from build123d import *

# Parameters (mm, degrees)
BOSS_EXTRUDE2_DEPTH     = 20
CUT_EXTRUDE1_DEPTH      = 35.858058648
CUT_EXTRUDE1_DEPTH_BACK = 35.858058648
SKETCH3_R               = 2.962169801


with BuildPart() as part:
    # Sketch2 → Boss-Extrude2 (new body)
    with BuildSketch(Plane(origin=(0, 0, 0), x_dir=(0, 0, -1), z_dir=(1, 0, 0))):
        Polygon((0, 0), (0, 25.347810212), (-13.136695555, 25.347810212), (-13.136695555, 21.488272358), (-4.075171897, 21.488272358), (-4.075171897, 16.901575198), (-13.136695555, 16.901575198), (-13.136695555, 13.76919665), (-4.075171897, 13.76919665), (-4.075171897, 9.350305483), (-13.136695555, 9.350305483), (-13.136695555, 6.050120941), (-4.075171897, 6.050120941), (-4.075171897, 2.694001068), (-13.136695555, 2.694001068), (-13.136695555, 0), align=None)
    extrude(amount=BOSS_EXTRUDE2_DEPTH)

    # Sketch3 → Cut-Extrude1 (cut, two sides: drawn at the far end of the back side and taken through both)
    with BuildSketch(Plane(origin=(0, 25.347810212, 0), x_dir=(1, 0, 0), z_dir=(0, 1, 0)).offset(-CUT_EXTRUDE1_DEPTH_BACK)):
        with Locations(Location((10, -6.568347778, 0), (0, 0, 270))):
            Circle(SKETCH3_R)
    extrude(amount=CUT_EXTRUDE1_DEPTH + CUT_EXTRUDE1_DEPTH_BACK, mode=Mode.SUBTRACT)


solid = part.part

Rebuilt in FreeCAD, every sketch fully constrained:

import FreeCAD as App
import Part
import Sketcher

V = App.Vector

doc = App.newDocument("Part")
body = doc.addObject("PartDesign::Body", "Body")

sketch1 = body.newObject("Sketcher::SketchObject", "Sketch")
sketch1.AttachmentSupport = (doc.getObject("YZ_Plane"), [""])
sketch1.MapMode = "FlatFace"
sketch1.addGeometry([
    Part.LineSegment(V(0, 0, 0), V(25.3, 0, 0)),
    Part.LineSegment(V(25.3, 0, 0), V(25.3, 13.1, 0)),
    Part.LineSegment(V(25.3, 13.1, 0), V(21.5, 13.1, 0)),
    Part.LineSegment(V(21.5, 13.1, 0), V(21.5, 4.1, 0)),
    Part.LineSegment(V(21.5, 4.1, 0), V(16.9, 4.1, 0)),
    Part.LineSegment(V(16.9, 4.1, 0), V(16.9, 13.1, 0)),
    Part.LineSegment(V(16.9, 13.1, 0), V(13.8, 13.1, 0)),
    Part.LineSegment(V(13.8, 13.1, 0), V(13.8, 4.1, 0)),
    Part.LineSegment(V(13.8, 4.1, 0), V(9.4, 4.1, 0)),
    Part.LineSegment(V(9.4, 4.1, 0), V(9.4, 13.1, 0)),
    Part.LineSegment(V(9.4, 13.1, 0), V(6.1, 13.1, 0)),
    Part.LineSegment(V(6.1, 13.1, 0), V(6.1, 4.1, 0)),
    Part.LineSegment(V(6.1, 4.1, 0), V(2.7, 4.1, 0)),
    Part.LineSegment(V(2.7, 4.1, 0), V(2.7, 13.1, 0)),
    Part.LineSegment(V(2.7, 13.1, 0), V(0, 13.1, 0)),
    Part.LineSegment(V(0, 13.1, 0), V(0, 0, 0)),
], False)
sketch1.addConstraint([
    Sketcher.Constraint("Coincident", 0, 2, 1, 1),
    Sketcher.Constraint("Coincident", 1, 2, 2, 1),
    Sketcher.Constraint("Coincident", 2, 2, 3, 1),
    Sketcher.Constraint("Coincident", 3, 2, 4, 1),
    Sketcher.Constraint("Coincident", 4, 2, 5, 1),
    Sketcher.Constraint("Coincident", 5, 2, 6, 1),
    Sketcher.Constraint("Coincident", 6, 2, 7, 1),
    Sketcher.Constraint("Coincident", 7, 2, 8, 1),
    Sketcher.Constraint("Coincident", 8, 2, 9, 1),
    Sketcher.Constraint("Coincident", 9, 2, 10, 1),
    Sketcher.Constraint("Coincident", 10, 2, 11, 1),
    Sketcher.Constraint("Coincident", 11, 2, 12, 1),
    Sketcher.Constraint("Coincident", 12, 2, 13, 1),
    Sketcher.Constraint("Coincident", 13, 2, 14, 1),
    Sketcher.Constraint("Coincident", 14, 2, 15, 1),
    Sketcher.Constraint("Coincident", 15, 2, 0, 1),
    Sketcher.Constraint("Horizontal", 0),
    Sketcher.Constraint("Vertical", 1),
    Sketcher.Constraint("Horizontal", 2),
    Sketcher.Constraint("Vertical", 3),
    Sketcher.Constraint("Horizontal", 4),
    Sketcher.Constraint("Vertical", 5),
    Sketcher.Constraint("Horizontal", 6),
    Sketcher.Constraint("Vertical", 7),
    Sketcher.Constraint("Horizontal", 8),
    Sketcher.Constraint("Vertical", 9),
    Sketcher.Constraint("Horizontal", 10),
    Sketcher.Constraint("Vertical", 11),
    Sketcher.Constraint("Horizontal", 12),
    Sketcher.Constraint("Vertical", 13),
    Sketcher.Constraint("Horizontal", 14),
    Sketcher.Constraint("Vertical", 15),
    Sketcher.Constraint("Coincident", 15, 2, -1, 1),
    Sketcher.Constraint("Horizontal", 2, 2, 5, 2),
    Sketcher.Constraint("Horizontal", 4, 2, 7, 2),
    Sketcher.Constraint("Horizontal", 6, 2, 9, 2),
    Sketcher.Constraint("Horizontal", 8, 2, 11, 2),
    Sketcher.Constraint("Horizontal", 10, 2, 13, 2),
    Sketcher.Constraint("DistanceX", 14, 2, 14, 1, 2.694001),
    Sketcher.Constraint("DistanceX", 0, 1, 0, 2, 25.34781),
    Sketcher.Constraint("DistanceX", 6, 2, 6, 1, 3.132379),
    Sketcher.Constraint("DistanceX", 8, 2, 8, 1, 4.418891),
    Sketcher.Constraint("DistanceX", 12, 2, 12, 1, 3.35612),
    Sketcher.Constraint("DistanceX", 2, 2, 2, 1, 3.859538),
    Sketcher.Constraint("DistanceX", 4, 2, 4, 1, 4.586697),
    Sketcher.Constraint("DistanceY", 1, 1, 1, 2, 13.136696),
    Sketcher.Constraint("DistanceY", 3, 2, 3, 1, 9.061524),
])
pad1 = body.newObject("PartDesign::Pad", "Pad")
pad1.Profile = sketch1
pad1.Length = 20

sketch2 = body.newObject("Sketcher::SketchObject", "Sketch001")
sketch2.AttachmentSupport = (doc.getObject("XZ_Plane"), [""])
sketch2.MapMode = "FlatFace"
sketch2.AttachmentOffset = App.Placement(V(0, 0, -25.34781), App.Rotation())
sketch2.addGeometry(Part.Circle(V(10, 6.6, 0), V(0, 0, 1), 3), False)
sketch2.addConstraint([
    Sketcher.Constraint("DistanceX", -1, 1, 0, 3, 10.0),
    Sketcher.Constraint("Diameter", 0, 5.92434),
    Sketcher.Constraint("DistanceY", -1, 1, 0, 3, 6.568348),
])
pocket1 = body.newObject("PartDesign::Pocket", "Pocket")
pocket1.Profile = sketch2
pocket1.Type = "ThroughAll"
pocket1.Midplane = True

doc.recompute()
